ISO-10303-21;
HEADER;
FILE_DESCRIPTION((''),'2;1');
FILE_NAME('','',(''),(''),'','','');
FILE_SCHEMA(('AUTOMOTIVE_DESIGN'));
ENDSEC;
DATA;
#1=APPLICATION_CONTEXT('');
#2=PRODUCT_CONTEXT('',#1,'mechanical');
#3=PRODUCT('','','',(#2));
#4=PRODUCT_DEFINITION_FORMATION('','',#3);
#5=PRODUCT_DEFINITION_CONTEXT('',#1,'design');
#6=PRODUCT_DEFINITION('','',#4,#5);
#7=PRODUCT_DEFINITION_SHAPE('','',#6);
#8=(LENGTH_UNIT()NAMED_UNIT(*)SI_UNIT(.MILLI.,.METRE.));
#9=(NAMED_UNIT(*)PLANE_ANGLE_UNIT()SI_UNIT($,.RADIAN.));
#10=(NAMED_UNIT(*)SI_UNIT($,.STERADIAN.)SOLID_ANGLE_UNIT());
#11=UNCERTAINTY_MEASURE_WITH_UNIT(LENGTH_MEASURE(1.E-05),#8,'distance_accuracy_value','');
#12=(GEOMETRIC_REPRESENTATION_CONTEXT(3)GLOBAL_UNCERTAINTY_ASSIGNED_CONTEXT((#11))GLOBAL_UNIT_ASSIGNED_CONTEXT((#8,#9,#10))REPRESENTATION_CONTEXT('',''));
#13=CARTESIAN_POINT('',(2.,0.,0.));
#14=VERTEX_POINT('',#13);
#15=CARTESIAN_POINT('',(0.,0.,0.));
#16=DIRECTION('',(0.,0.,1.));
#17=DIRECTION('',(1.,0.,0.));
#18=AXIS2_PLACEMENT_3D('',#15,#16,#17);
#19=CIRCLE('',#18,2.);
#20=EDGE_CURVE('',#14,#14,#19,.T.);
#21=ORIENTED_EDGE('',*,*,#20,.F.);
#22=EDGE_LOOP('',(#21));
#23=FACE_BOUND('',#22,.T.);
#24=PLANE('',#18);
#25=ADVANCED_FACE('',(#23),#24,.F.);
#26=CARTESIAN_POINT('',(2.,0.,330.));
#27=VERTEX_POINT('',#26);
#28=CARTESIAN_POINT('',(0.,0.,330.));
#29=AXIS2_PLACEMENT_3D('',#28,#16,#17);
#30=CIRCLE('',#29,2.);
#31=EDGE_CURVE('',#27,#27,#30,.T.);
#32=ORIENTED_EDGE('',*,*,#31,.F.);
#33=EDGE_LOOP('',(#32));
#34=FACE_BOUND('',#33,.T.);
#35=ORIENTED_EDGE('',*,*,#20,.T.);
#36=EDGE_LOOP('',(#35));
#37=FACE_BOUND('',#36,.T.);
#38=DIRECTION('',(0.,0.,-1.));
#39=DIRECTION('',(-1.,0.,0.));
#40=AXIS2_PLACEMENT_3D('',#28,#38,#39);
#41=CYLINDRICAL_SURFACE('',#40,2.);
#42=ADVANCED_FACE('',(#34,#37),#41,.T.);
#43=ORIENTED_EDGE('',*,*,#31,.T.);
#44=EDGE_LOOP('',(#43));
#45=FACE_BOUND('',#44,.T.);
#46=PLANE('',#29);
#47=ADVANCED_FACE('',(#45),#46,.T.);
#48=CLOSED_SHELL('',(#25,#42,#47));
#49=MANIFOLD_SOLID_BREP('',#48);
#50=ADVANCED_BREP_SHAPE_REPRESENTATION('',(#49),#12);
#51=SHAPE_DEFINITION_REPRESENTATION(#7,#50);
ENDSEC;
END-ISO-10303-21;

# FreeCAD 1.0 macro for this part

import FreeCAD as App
import Part
import Sketcher

V = App.Vector

doc = App.newDocument("Part")
body = doc.addObject("PartDesign::Body", "Body")

# Sketch on XY plane
sketch1 = body.newObject("Sketcher::SketchObject", "Sketch")
sketch1.AttachmentSupport = (doc.getObject("XY_Plane"), [""])
sketch1.MapMode = "FlatFace"
sketch1.addGeometry(Part.Circle(V(0, 0, 0), V(0, 0, 1), 2), False)
sketch1.addConstraint([
    Sketcher.Constraint("Coincident", 0, 3, -1, 1),
    Sketcher.Constraint("Diameter", 0, 4.0),
])
pad1 = body.newObject("PartDesign::Pad", "Pad")
pad1.Profile = sketch1
pad1.Length = 330

doc.recompute()
